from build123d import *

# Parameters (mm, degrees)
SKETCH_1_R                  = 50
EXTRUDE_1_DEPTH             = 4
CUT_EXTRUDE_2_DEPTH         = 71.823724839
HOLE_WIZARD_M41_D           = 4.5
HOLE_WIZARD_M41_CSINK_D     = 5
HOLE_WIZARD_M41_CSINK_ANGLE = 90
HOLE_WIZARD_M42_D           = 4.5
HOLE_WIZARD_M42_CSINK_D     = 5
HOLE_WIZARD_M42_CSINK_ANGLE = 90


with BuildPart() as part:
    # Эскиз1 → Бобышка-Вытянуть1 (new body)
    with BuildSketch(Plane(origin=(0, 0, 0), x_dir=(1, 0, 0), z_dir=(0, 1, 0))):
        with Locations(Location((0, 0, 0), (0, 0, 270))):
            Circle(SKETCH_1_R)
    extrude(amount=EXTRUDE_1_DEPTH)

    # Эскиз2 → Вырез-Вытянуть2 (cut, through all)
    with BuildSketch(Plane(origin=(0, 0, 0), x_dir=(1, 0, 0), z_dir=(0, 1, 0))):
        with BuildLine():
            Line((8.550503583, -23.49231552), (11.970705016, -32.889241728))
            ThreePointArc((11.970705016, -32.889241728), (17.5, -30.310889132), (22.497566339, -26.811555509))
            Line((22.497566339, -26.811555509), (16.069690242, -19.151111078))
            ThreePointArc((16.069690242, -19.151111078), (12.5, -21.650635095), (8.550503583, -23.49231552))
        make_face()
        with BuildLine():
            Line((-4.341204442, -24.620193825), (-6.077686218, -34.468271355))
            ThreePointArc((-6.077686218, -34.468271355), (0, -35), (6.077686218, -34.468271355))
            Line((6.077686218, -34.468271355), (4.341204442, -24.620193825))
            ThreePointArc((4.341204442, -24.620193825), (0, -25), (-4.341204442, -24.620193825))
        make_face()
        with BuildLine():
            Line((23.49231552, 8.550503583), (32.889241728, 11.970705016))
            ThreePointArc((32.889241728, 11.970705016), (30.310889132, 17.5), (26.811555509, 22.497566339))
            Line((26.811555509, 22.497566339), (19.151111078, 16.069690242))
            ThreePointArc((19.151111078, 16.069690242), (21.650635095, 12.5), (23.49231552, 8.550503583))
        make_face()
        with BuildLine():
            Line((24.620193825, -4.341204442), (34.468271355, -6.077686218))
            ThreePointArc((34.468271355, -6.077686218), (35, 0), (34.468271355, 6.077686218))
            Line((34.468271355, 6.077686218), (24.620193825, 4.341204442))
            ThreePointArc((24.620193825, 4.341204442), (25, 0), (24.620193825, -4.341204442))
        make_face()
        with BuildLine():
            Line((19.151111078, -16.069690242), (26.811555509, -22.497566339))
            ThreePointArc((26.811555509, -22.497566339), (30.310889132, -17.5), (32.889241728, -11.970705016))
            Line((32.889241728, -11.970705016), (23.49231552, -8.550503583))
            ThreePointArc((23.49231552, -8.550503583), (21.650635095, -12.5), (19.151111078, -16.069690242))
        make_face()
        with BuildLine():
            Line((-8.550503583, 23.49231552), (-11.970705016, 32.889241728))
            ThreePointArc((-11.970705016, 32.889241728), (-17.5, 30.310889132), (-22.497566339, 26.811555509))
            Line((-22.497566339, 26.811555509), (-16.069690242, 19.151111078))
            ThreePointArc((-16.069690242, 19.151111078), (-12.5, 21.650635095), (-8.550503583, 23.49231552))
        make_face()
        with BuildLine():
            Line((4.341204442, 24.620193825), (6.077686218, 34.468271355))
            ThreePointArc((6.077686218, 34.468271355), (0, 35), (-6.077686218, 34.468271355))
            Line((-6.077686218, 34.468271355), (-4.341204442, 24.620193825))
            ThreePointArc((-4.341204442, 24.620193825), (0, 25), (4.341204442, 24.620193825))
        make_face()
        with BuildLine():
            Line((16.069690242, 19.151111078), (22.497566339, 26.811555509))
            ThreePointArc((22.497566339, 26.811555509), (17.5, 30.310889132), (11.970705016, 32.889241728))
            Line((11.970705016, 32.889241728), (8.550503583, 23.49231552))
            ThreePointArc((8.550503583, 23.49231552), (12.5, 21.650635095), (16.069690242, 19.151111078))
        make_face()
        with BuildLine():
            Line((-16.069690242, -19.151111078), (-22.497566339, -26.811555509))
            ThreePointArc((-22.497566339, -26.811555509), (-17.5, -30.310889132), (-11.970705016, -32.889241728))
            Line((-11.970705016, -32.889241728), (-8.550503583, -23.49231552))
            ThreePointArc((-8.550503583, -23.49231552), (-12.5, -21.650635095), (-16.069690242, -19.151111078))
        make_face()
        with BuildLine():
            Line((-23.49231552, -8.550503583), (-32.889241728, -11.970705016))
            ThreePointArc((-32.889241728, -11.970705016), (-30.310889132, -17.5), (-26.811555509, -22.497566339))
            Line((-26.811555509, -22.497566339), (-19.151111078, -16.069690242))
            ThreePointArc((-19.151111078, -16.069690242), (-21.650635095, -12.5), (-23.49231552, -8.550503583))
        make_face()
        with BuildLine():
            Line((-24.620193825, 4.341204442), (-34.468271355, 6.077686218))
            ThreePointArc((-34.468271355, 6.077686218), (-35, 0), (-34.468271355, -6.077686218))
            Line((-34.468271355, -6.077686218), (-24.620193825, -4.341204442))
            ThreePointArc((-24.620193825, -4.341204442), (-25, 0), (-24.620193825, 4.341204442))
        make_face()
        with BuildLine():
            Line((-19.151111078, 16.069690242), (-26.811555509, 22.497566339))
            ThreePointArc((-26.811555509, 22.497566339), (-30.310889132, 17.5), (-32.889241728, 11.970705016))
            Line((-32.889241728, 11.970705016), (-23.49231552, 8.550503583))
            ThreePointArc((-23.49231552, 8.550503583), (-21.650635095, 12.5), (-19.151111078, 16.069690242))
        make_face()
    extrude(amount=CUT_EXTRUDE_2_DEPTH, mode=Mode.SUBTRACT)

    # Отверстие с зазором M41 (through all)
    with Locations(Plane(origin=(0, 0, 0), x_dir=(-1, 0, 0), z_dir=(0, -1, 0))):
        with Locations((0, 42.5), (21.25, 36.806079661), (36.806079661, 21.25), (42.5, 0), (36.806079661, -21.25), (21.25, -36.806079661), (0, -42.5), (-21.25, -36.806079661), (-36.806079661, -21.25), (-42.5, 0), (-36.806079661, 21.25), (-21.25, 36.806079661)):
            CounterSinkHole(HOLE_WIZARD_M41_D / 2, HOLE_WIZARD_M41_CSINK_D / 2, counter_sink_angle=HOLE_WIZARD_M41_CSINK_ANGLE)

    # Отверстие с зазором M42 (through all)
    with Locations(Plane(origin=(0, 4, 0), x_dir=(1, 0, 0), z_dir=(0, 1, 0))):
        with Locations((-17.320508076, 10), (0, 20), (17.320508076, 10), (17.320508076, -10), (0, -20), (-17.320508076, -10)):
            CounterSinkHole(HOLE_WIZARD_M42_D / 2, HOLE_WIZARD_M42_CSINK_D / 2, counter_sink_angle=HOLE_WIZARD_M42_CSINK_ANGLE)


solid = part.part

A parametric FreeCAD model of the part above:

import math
import FreeCAD as App
import Part
import Sketcher

V = App.Vector
Q = App.Units.Quantity

doc = App.newDocument("Part")
body = doc.addObject("PartDesign::Body", "Body")

# Sketch on XZ plane
sketch1 = body.newObject("Sketcher::SketchObject", "Sketch")
sketch1.AttachmentSupport = (doc.getObject("XZ_Plane"), [""])
sketch1.MapMode = "FlatFace"
sketch1.addGeometry(Part.Circle(V(0, 0, 0), V(0, 0, 1), 50), False)
sketch1.addConstraint([
    Sketcher.Constraint("Coincident", 0, 3, -1, 1),
    Sketcher.Constraint("Diameter", 0, 100.0),
])
pad1 = body.newObject("PartDesign::Pad", "Pad")
pad1.Profile = sketch1
pad1.Length = 4
pad1.Reversed = True

# Sketch on XZ plane
sketch2 = body.newObject("Sketcher::SketchObject", "Sketch001")
sketch2.AttachmentSupport = (doc.getObject("XZ_Plane"), [""])
sketch2.MapMode = "FlatFace"
sketch2.addGeometry([
    Part.LineSegment(V(9, 23, 0), V(12, 33, 0)),  # 0
    Part.ArcOfCircle(Part.Circle(V(0, 0, 0), V(0, 0, 1), 35), math.radians(50), math.radians(70)),  # 1
    Part.LineSegment(V(22, 27, 0), V(16, 19, 0)),  # 2
    Part.ArcOfCircle(Part.Circle(V(0, 0, 0), V(0, 0, 1), 25), math.radians(50), math.radians(70)),  # 3
    Part.LineSegment(V(-4, 25, 0), V(-6, 34, 0)),  # 4
    Part.ArcOfCircle(Part.Circle(V(0, 0, 0), V(0, 0, 1), 35), math.radians(80), math.radians(100)),  # 5
    Part.LineSegment(V(6, 34, 0), V(4, 25, 0)),  # 6
    Part.ArcOfCircle(Part.Circle(V(0, 0, 0), V(0, 0, 1), 25), math.radians(80), math.radians(100)),  # 7
    Part.LineSegment(V(23, -9, 0), V(33, -12, 0)),  # 8
    Part.ArcOfCircle(Part.Circle(V(0, 0, 0), V(0, 0, 1), 35), math.radians(-40), math.radians(-20)),  # 9
    Part.LineSegment(V(27, -22, 0), V(19, -16, 0)),  # 10
    Part.ArcOfCircle(Part.Circle(V(0, 0, 0), V(0, 0, 1), 25), math.radians(-40), math.radians(-20)),  # 11
    Part.LineSegment(V(25, 4, 0), V(34, 6, 0)),  # 12
    Part.ArcOfCircle(Part.Circle(V(0, 0, 0), V(0, 0, 1), 35), math.radians(-10), math.radians(10)),  # 13
    Part.LineSegment(V(34, -6, 0), V(25, -4, 0)),  # 14
    Part.ArcOfCircle(Part.Circle(V(0, 0, 0), V(0, 0, 1), 25), math.radians(-10), math.radians(10)),  # 15
    Part.LineSegment(V(19, 16, 0), V(27, 22, 0)),  # 16
    Part.ArcOfCircle(Part.Circle(V(0, 0, 0), V(0, 0, 1), 35), math.radians(20), math.radians(40)),  # 17
    Part.LineSegment(V(33, 12, 0), V(23, 9, 0)),  # 18
    Part.ArcOfCircle(Part.Circle(V(0, 0, 0), V(0, 0, 1), 25), math.radians(20), math.radians(40)),  # 19
    Part.LineSegment(V(-9, -23, 0), V(-12, -33, 0)),  # 20
    Part.ArcOfCircle(Part.Circle(V(0, 0, 0), V(0, 0, 1), 35), math.radians(-130), math.radians(-110)),  # 21
    Part.LineSegment(V(-22, -27, 0), V(-16, -19, 0)),  # 22
    Part.ArcOfCircle(Part.Circle(V(0, 0, 0), V(0, 0, 1), 25), math.radians(-130), math.radians(-110)),  # 23
    Part.LineSegment(V(4, -25, 0), V(6, -34, 0)),  # 24
    Part.ArcOfCircle(Part.Circle(V(0, 0, 0), V(0, 0, 1), 35), math.radians(-100), math.radians(-80)),  # 25
    Part.LineSegment(V(-6, -34, 0), V(-4, -25, 0)),  # 26
    Part.ArcOfCircle(Part.Circle(V(0, 0, 0), V(0, 0, 1), 25), math.radians(-100), math.radians(-80)),  # 27
    Part.LineSegment(V(16, -19, 0), V(22, -27, 0)),  # 28
    Part.ArcOfCircle(Part.Circle(V(0, 0, 0), V(0, 0, 1), 35), math.radians(-70), math.radians(-50)),  # 29
    Part.LineSegment(V(12, -33, 0), V(9, -23, 0)),  # 30
    Part.ArcOfCircle(Part.Circle(V(0, 0, 0), V(0, 0, 1), 25), math.radians(-70), math.radians(-50)),  # 31
    Part.LineSegment(V(-16, 19, 0), V(-22, 27, 0)),  # 32
    Part.ArcOfCircle(Part.Circle(V(0, 0, 0), V(0, 0, 1), 35), math.radians(110), math.radians(130)),  # 33
    Part.LineSegment(V(-12, 33, 0), V(-9, 23, 0)),  # 34
    Part.ArcOfCircle(Part.Circle(V(0, 0, 0), V(0, 0, 1), 25), math.radians(110), math.radians(130)),  # 35
    Part.LineSegment(V(-23, 9, 0), V(-33, 12, 0)),  # 36
    Part.ArcOfCircle(Part.Circle(V(0, 0, 0), V(0, 0, 1), 35), math.radians(140), math.radians(160)),  # 37
    Part.LineSegment(V(-27, 22, 0), V(-19, 16, 0)),  # 38
    Part.ArcOfCircle(Part.Circle(V(0, 0, 0), V(0, 0, 1), 25), math.radians(140), math.radians(160)),  # 39
    Part.LineSegment(V(-25, -4, 0), V(-34, -6, 0)),  # 40
    Part.ArcOfCircle(Part.Circle(V(0, 0, 0), V(0, 0, 1), 35), math.radians(170), math.radians(190)),  # 41
    Part.LineSegment(V(-34, 6, 0), V(-25, 4, 0)),  # 42
    Part.ArcOfCircle(Part.Circle(V(0, 0, 0), V(0, 0, 1), 25), math.radians(170), math.radians(190)),  # 43
    Part.LineSegment(V(-19, -16, 0), V(-27, -22, 0)),  # 44
    Part.ArcOfCircle(Part.Circle(V(0, 0, 0), V(0, 0, 1), 35), math.radians(-160), math.radians(-140)),  # 45
    Part.LineSegment(V(-33, -12, 0), V(-23, -9, 0)),  # 46
    Part.ArcOfCircle(Part.Circle(V(0, 0, 0), V(0, 0, 1), 25), math.radians(-160), math.radians(-140)),  # 47
], False)
sketch2.addConstraint([
    Sketcher.Constraint("Coincident", 0, 2, 1, 2),
    Sketcher.Constraint("Coincident", 1, 1, 2, 1),
    Sketcher.Constraint("Coincident", 2, 2, 3, 1),
    Sketcher.Constraint("Coincident", 3, 2, 0, 1),
    Sketcher.Constraint("Coincident", 4, 2, 5, 2),
    Sketcher.Constraint("Coincident", 5, 1, 6, 1),
    Sketcher.Constraint("Coincident", 6, 2, 7, 1),
    Sketcher.Constraint("Coincident", 7, 2, 4, 1),
    Sketcher.Constraint("Coincident", 8, 2, 9, 2),
    Sketcher.Constraint("Coincident", 9, 1, 10, 1),
    Sketcher.Constraint("Coincident", 10, 2, 11, 1),
    Sketcher.Constraint("Coincident", 11, 2, 8, 1),
    Sketcher.Constraint("Coincident", 12, 2, 13, 2),
    Sketcher.Constraint("Coincident", 13, 1, 14, 1),
    Sketcher.Constraint("Coincident", 14, 2, 15, 1),
    Sketcher.Constraint("Coincident", 15, 2, 12, 1),
    Sketcher.Constraint("Coincident", 16, 2, 17, 2),
    Sketcher.Constraint("Coincident", 17, 1, 18, 1),
    Sketcher.Constraint("Coincident", 18, 2, 19, 1),
    Sketcher.Constraint("Coincident", 19, 2, 16, 1),
    Sketcher.Constraint("Coincident", 20, 2, 21, 2),
    Sketcher.Constraint("Coincident", 21, 1, 22, 1),
    Sketcher.Constraint("Coincident", 22, 2, 23, 1),
    Sketcher.Constraint("Coincident", 23, 2, 20, 1),
    Sketcher.Constraint("Coincident", 24, 2, 25, 2),
    Sketcher.Constraint("Coincident", 25, 1, 26, 1),
    Sketcher.Constraint("Coincident", 26, 2, 27, 1),
    Sketcher.Constraint("Coincident", 27, 2, 24, 1),
    Sketcher.Constraint("Coincident", 28, 2, 29, 2),
    Sketcher.Constraint("Coincident", 29, 1, 30, 1),
    Sketcher.Constraint("Coincident", 30, 2, 31, 1),
    Sketcher.Constraint("Coincident", 31, 2, 28, 1),
    Sketcher.Constraint("Coincident", 32, 2, 33, 2),
    Sketcher.Constraint("Coincident", 33, 1, 34, 1),
    Sketcher.Constraint("Coincident", 34, 2, 35, 1),
    Sketcher.Constraint("Coincident", 35, 2, 32, 1),
    Sketcher.Constraint("Coincident", 36, 2, 37, 2),
    Sketcher.Constraint("Coincident", 37, 1, 38, 1),
    Sketcher.Constraint("Coincident", 38, 2, 39, 1),
    Sketcher.Constraint("Coincident", 39, 2, 36, 1),
    Sketcher.Constraint("Coincident", 40, 2, 41, 2),
    Sketcher.Constraint("Coincident", 41, 1, 42, 1),
    Sketcher.Constraint("Coincident", 42, 2, 43, 1),
    Sketcher.Constraint("Coincident", 43, 2, 40, 1),
    Sketcher.Constraint("Coincident", 44, 2, 45, 2),
    Sketcher.Constraint("Coincident", 45, 1, 46, 1),
    Sketcher.Constraint("Coincident", 46, 2, 47, 1),
    Sketcher.Constraint("Coincident", 47, 2, 44, 1),
    Sketcher.Constraint("Coincident", 1, 3, -1, 1),
    Sketcher.Constraint("Coincident", 3, 3, -1, 1),
    Sketcher.Constraint("Coincident", 5, 3, -1, 1),
    Sketcher.Constraint("Coincident", 7, 3, -1, 1),
    Sketcher.Constraint("Coincident", 9, 3, -1, 1),
    Sketcher.Constraint("Coincident", 11, 3, -1, 1),
    Sketcher.Constraint("Coincident", 13, 3, -1, 1),
    Sketcher.Constraint("Coincident", 15, 3, -1, 1),
    Sketcher.Constraint("Coincident", 17, 3, -1, 1),
    Sketcher.Constraint("Coincident", 19, 3, -1, 1),
    Sketcher.Constraint("Coincident", 21, 3, -1, 1),
    Sketcher.Constraint("Coincident", 23, 3, -1, 1),
    Sketcher.Constraint("Coincident", 25, 3, -1, 1),
    Sketcher.Constraint("Coincident", 27, 3, -1, 1),
    Sketcher.Constraint("Coincident", 29, 3, -1, 1),
    Sketcher.Constraint("Coincident", 31, 3, -1, 1),
    Sketcher.Constraint("Coincident", 33, 3, -1, 1),
    Sketcher.Constraint("Coincident", 35, 3, -1, 1),
    Sketcher.Constraint("Coincident", 37, 3, -1, 1),
    Sketcher.Constraint("Coincident", 39, 3, -1, 1),
    Sketcher.Constraint("Coincident", 41, 3, -1, 1),
    Sketcher.Constraint("Coincident", 43, 3, -1, 1),
    Sketcher.Constraint("Coincident", 45, 3, -1, 1),
    Sketcher.Constraint("Coincident", 47, 3, -1, 1),
    Sketcher.Constraint("Equal", 1, 5),
    Sketcher.Constraint("Equal", 3, 7),
    Sketcher.Constraint("Equal", 5, 9),
    Sketcher.Constraint("Equal", 7, 11),
    Sketcher.Constraint("Equal", 9, 13),
    Sketcher.Constraint("Equal", 11, 15),
    Sketcher.Constraint("Equal", 13, 17),
    Sketcher.Constraint("Equal", 15, 19),
    Sketcher.Constraint("Equal", 17, 21),
    Sketcher.Constraint("Equal", 19, 23),
    Sketcher.Constraint("Equal", 21, 25),
    Sketcher.Constraint("Equal", 23, 27),
    Sketcher.Constraint("Equal", 25, 29),
    Sketcher.Constraint("Equal", 27, 31),
    Sketcher.Constraint("Equal", 29, 33),
    Sketcher.Constraint("Equal", 31, 35),
    Sketcher.Constraint("Equal", 33, 37),
    Sketcher.Constraint("Equal", 35, 39),
    Sketcher.Constraint("Equal", 37, 41),
    Sketcher.Constraint("Equal", 39, 43),
    Sketcher.Constraint("Equal", 41, 45),
    Sketcher.Constraint("Equal", 43, 47),
    Sketcher.Constraint("Perpendicular", 0, 8),
    Sketcher.Constraint("Perpendicular", 2, 10),
    Sketcher.Constraint("Perpendicular", 4, 12),
    Sketcher.Constraint("Perpendicular", 6, 14),
    Sketcher.Constraint("Perpendicular", 8, 20),
    Sketcher.Constraint("Perpendicular", 10, 22),
    Sketcher.Constraint("Perpendicular", 12, 24),
    Sketcher.Constraint("Perpendicular", 14, 26),
    Sketcher.Constraint("Perpendicular", 16, 28),
    Sketcher.Constraint("Perpendicular", 18, 30),
    Sketcher.Constraint("Parallel", 28, 32),
    Sketcher.Constraint("Parallel", 30, 34),
    Sketcher.Constraint("Perpendicular", 20, 36),
    Sketcher.Constraint("Perpendicular", 22, 38),
    Sketcher.Constraint("Perpendicular", 24, 40),
    Sketcher.Constraint("Perpendicular", 26, 42),
    Sketcher.Constraint("Perpendicular", 32, 44),
    Sketcher.Constraint("Perpendicular", 34, 46),
    Sketcher.Constraint("Horizontal", 4, 2, 5, 1),
    Sketcher.Constraint("Horizontal", 6, 2, 7, 2),
    Sketcher.Constraint("Horizontal", 24, 2, 25, 1),
    Sketcher.Constraint("Horizontal", 21, 1, 28, 2),
    Sketcher.Constraint("Horizontal", 20, 2, 29, 1),
    Sketcher.Constraint("Horizontal", 23, 2, 30, 2),
    Sketcher.Constraint("Horizontal", 22, 2, 31, 2),
    Sketcher.Constraint("Horizontal", 1, 1, 32, 2),
    Sketcher.Constraint("Horizontal", 0, 2, 33, 1),
    Sketcher.Constraint("Horizontal", 17, 1, 36, 2),
    Sketcher.Constraint("Horizontal", 16, 2, 37, 1),
    Sketcher.Constraint("Horizontal", 13, 1, 40, 2),
    Sketcher.Constraint("Horizontal", 12, 2, 41, 1),
    Sketcher.Constraint("Horizontal", 9, 1, 44, 2),
    Sketcher.Constraint("Horizontal", 8, 2, 45, 1),
    Sketcher.Constraint("Vertical", 12, 2, 13, 1),
    Sketcher.Constraint("Vertical", 9, 1, 16, 2),
    Sketcher.Constraint("Vertical", 8, 2, 17, 1),
    Sketcher.Constraint("Vertical", 5, 1, 24, 2),
    Sketcher.Constraint("Vertical", 1, 1, 28, 2),
    Sketcher.Constraint("Vertical", 0, 2, 29, 1),
    Sketcher.Constraint("Radius", 1, 35.0),
    Sketcher.Constraint("Radius", 3, 25.0),
    Sketcher.Constraint("Angle", 0, Q("70 deg")),
    Sketcher.Constraint("Angle", 2, Q("-130 deg")),
    Sketcher.Constraint("Angle", 4, Q("100 deg")),
    Sketcher.Constraint("DistanceY", -1, 1, 0, 2, 32.889242),
    Sketcher.Constraint("DistanceX", -1, 1, 2, 2, 16.06969),
    Sketcher.Constraint("DistanceY", -1, 1, 4, 2, 34.468271),
    Sketcher.Constraint("DistanceX", -1, 1, 8, 2, 32.889242),
    Sketcher.Constraint("DistanceX", -1, 1, 10, 2, 19.151111),
    Sketcher.Constraint("DistanceX", -1, 1, 12, 2, 34.468271),
])
pocket1 = body.newObject("PartDesign::Pocket", "Pocket")
pocket1.Profile = sketch2
pocket1.Type = "ThroughAll"

# Sketch on XZ plane
sketch3 = body.newObject("Sketcher::SketchObject", "Sketch002")
sketch3.AttachmentSupport = (doc.getObject("XZ_Plane"), [""])
sketch3.MapMode = "FlatFace"
sketch3.addGeometry([
    Part.Circle(V(0, -42.5, 0), V(0, 0, 1), 2.2),  # 0
    Part.Circle(V(-21.2, -36.8, 0), V(0, 0, 1), 2.2),  # 1
    Part.Circle(V(-36.8, -21.2, 0), V(0, 0, 1), 2.2),  # 2
    Part.Circle(V(-42.5, 0, 0), V(0, 0, 1), 2.2),  # 3
    Part.Circle(V(-36.8, 21.2, 0), V(0, 0, 1), 2.2),  # 4
    Part.Circle(V(-21.2, 36.8, 0), V(0, 0, 1), 2.2),  # 5
    Part.Circle(V(0, 42.5, 0), V(0, 0, 1), 2.2),  # 6
    Part.Circle(V(21.2, 36.8, 0), V(0, 0, 1), 2.2),  # 7
    Part.Circle(V(36.8, 21.2, 0), V(0, 0, 1), 2.2),  # 8
    Part.Circle(V(42.5, 0, 0), V(0, 0, 1), 2.2),  # 9
    Part.Circle(V(36.8, -21.2, 0), V(0, 0, 1), 2.2),  # 10
    Part.Circle(V(21.2, -36.8, 0), V(0, 0, 1), 2.2),  # 11
], False)
sketch3.addConstraint([
    Sketcher.Constraint("Equal", 0, 1),
    Sketcher.Constraint("Equal", 1, 2),
    Sketcher.Constraint("Equal", 2, 3),
    Sketcher.Constraint("Equal", 3, 4),
    Sketcher.Constraint("Equal", 4, 5),
    Sketcher.Constraint("Equal", 5, 6),
    Sketcher.Constraint("Equal", 6, 7),
    Sketcher.Constraint("Equal", 7, 8),
    Sketcher.Constraint("Equal", 8, 9),
    Sketcher.Constraint("Equal", 9, 10),
    Sketcher.Constraint("Equal", 10, 11),
    Sketcher.Constraint("Symmetric", 0, 3, 6, 3, -1, 1),
    Sketcher.Constraint("Symmetric", 1, 3, 7, 3, -1, 1),
    Sketcher.Constraint("Symmetric", 2, 3, 8, 3, -1, 1),
    Sketcher.Constraint("Symmetric", 3, 3, 9, 3, -1, 1),
    Sketcher.Constraint("Symmetric", 4, 3, 10, 3, -1, 1),
    Sketcher.Constraint("Symmetric", 5, 3, 11, 3, -1, 1),
    Sketcher.Constraint("Symmetric", 5, 3, 7, 3, -2),
    Sketcher.Constraint("Symmetric", 4, 3, 8, 3, -2),
    Sketcher.Constraint("PointOnObject", 0, 3, -2),
    Sketcher.Constraint("PointOnObject", 3, 3, -1),
    Sketcher.Constraint("Diameter", 0, 4.5),
    Sketcher.Constraint("DistanceY", 0, 3, -1, 1, 42.5),
    Sketcher.Constraint("DistanceX", 3, 3, -1, 1, 42.5),
    Sketcher.Constraint("DistanceY", 2, 3, 4, 3, 42.5),
    Sketcher.Constraint("DistanceX", 5, 3, 7, 3, 42.5),
    Sketcher.Constraint("DistanceY", 1, 3, -1, 1, 36.80608),
    Sketcher.Constraint("DistanceX", 2, 3, -1, 1, 36.80608),
])
doc.recompute()
hole = body.newObject("PartDesign::Hole", "Hole")
hole.Profile = sketch3
hole.ThreadType = "None"
hole.Diameter = 4.5
hole.DepthType = "ThroughAll"
hole.HoleCutType = "Countersink"
hole.HoleCutDiameter = 5
hole.HoleCutCountersinkAngle = 90

# Sketch on XZ plane
sketch4 = body.newObject("Sketcher::SketchObject", "Sketch003")
sketch4.AttachmentSupport = (doc.getObject("XZ_Plane"), [""])
sketch4.MapMode = "FlatFace"
sketch4.AttachmentOffset = App.Placement(V(0, 0, -4), App.Rotation())
sketch4.addGeometry([
    Part.Circle(V(-17.3, -10, 0), V(0, 0, 1), 2.2),  # 0
    Part.Circle(V(0, -20, 0), V(0, 0, 1), 2.2),  # 1
    Part.Circle(V(17.3, -10, 0), V(0, 0, 1), 2.2),  # 2
    Part.Circle(V(17.3, 10, 0), V(0, 0, 1), 2.2),  # 3
    Part.Circle(V(0, 20, 0), V(0, 0, 1), 2.2),  # 4
    Part.Circle(V(-17.3, 10, 0), V(0, 0, 1), 2.2),  # 5
], False)
sketch4.addConstraint([
    Sketcher.Constraint("Equal", 0, 1),
    Sketcher.Constraint("Equal", 1, 2),
    Sketcher.Constraint("Equal", 2, 3),
    Sketcher.Constraint("Equal", 3, 4),
    Sketcher.Constraint("Equal", 4, 5),
    Sketcher.Constraint("Symmetric", 0, 3, 3, 3, -1, 1),
    Sketcher.Constraint("Symmetric", 1, 3, 4, 3, -1, 1),
    Sketcher.Constraint("Symmetric", 2, 3, 5, 3, -1, 1),
    Sketcher.Constraint("Symmetric", 0, 3, 2, 3, -2),
    Sketcher.Constraint("PointOnObject", 1, 3, -2),
    Sketcher.Constraint("Diameter", 0, 4.5),
    Sketcher.Constraint("DistanceY", 0, 3, -1, 1, 10.0),
    Sketcher.Constraint("DistanceY", 1, 3, -1, 1, 20.0),
    Sketcher.Constraint("DistanceX", 0, 3, -1, 1, 17.320508),
])
doc.recompute()
hole2 = body.newObject("PartDesign::Hole", "Hole001")
hole2.Profile = sketch4
hole2.ThreadType = "None"
hole2.Diameter = 4.5
hole2.DepthType = "ThroughAll"
hole2.HoleCutType = "Countersink"
hole2.HoleCutDiameter = 5
hole2.HoleCutCountersinkAngle = 90
hole2.Reversed = True

doc.recompute()
